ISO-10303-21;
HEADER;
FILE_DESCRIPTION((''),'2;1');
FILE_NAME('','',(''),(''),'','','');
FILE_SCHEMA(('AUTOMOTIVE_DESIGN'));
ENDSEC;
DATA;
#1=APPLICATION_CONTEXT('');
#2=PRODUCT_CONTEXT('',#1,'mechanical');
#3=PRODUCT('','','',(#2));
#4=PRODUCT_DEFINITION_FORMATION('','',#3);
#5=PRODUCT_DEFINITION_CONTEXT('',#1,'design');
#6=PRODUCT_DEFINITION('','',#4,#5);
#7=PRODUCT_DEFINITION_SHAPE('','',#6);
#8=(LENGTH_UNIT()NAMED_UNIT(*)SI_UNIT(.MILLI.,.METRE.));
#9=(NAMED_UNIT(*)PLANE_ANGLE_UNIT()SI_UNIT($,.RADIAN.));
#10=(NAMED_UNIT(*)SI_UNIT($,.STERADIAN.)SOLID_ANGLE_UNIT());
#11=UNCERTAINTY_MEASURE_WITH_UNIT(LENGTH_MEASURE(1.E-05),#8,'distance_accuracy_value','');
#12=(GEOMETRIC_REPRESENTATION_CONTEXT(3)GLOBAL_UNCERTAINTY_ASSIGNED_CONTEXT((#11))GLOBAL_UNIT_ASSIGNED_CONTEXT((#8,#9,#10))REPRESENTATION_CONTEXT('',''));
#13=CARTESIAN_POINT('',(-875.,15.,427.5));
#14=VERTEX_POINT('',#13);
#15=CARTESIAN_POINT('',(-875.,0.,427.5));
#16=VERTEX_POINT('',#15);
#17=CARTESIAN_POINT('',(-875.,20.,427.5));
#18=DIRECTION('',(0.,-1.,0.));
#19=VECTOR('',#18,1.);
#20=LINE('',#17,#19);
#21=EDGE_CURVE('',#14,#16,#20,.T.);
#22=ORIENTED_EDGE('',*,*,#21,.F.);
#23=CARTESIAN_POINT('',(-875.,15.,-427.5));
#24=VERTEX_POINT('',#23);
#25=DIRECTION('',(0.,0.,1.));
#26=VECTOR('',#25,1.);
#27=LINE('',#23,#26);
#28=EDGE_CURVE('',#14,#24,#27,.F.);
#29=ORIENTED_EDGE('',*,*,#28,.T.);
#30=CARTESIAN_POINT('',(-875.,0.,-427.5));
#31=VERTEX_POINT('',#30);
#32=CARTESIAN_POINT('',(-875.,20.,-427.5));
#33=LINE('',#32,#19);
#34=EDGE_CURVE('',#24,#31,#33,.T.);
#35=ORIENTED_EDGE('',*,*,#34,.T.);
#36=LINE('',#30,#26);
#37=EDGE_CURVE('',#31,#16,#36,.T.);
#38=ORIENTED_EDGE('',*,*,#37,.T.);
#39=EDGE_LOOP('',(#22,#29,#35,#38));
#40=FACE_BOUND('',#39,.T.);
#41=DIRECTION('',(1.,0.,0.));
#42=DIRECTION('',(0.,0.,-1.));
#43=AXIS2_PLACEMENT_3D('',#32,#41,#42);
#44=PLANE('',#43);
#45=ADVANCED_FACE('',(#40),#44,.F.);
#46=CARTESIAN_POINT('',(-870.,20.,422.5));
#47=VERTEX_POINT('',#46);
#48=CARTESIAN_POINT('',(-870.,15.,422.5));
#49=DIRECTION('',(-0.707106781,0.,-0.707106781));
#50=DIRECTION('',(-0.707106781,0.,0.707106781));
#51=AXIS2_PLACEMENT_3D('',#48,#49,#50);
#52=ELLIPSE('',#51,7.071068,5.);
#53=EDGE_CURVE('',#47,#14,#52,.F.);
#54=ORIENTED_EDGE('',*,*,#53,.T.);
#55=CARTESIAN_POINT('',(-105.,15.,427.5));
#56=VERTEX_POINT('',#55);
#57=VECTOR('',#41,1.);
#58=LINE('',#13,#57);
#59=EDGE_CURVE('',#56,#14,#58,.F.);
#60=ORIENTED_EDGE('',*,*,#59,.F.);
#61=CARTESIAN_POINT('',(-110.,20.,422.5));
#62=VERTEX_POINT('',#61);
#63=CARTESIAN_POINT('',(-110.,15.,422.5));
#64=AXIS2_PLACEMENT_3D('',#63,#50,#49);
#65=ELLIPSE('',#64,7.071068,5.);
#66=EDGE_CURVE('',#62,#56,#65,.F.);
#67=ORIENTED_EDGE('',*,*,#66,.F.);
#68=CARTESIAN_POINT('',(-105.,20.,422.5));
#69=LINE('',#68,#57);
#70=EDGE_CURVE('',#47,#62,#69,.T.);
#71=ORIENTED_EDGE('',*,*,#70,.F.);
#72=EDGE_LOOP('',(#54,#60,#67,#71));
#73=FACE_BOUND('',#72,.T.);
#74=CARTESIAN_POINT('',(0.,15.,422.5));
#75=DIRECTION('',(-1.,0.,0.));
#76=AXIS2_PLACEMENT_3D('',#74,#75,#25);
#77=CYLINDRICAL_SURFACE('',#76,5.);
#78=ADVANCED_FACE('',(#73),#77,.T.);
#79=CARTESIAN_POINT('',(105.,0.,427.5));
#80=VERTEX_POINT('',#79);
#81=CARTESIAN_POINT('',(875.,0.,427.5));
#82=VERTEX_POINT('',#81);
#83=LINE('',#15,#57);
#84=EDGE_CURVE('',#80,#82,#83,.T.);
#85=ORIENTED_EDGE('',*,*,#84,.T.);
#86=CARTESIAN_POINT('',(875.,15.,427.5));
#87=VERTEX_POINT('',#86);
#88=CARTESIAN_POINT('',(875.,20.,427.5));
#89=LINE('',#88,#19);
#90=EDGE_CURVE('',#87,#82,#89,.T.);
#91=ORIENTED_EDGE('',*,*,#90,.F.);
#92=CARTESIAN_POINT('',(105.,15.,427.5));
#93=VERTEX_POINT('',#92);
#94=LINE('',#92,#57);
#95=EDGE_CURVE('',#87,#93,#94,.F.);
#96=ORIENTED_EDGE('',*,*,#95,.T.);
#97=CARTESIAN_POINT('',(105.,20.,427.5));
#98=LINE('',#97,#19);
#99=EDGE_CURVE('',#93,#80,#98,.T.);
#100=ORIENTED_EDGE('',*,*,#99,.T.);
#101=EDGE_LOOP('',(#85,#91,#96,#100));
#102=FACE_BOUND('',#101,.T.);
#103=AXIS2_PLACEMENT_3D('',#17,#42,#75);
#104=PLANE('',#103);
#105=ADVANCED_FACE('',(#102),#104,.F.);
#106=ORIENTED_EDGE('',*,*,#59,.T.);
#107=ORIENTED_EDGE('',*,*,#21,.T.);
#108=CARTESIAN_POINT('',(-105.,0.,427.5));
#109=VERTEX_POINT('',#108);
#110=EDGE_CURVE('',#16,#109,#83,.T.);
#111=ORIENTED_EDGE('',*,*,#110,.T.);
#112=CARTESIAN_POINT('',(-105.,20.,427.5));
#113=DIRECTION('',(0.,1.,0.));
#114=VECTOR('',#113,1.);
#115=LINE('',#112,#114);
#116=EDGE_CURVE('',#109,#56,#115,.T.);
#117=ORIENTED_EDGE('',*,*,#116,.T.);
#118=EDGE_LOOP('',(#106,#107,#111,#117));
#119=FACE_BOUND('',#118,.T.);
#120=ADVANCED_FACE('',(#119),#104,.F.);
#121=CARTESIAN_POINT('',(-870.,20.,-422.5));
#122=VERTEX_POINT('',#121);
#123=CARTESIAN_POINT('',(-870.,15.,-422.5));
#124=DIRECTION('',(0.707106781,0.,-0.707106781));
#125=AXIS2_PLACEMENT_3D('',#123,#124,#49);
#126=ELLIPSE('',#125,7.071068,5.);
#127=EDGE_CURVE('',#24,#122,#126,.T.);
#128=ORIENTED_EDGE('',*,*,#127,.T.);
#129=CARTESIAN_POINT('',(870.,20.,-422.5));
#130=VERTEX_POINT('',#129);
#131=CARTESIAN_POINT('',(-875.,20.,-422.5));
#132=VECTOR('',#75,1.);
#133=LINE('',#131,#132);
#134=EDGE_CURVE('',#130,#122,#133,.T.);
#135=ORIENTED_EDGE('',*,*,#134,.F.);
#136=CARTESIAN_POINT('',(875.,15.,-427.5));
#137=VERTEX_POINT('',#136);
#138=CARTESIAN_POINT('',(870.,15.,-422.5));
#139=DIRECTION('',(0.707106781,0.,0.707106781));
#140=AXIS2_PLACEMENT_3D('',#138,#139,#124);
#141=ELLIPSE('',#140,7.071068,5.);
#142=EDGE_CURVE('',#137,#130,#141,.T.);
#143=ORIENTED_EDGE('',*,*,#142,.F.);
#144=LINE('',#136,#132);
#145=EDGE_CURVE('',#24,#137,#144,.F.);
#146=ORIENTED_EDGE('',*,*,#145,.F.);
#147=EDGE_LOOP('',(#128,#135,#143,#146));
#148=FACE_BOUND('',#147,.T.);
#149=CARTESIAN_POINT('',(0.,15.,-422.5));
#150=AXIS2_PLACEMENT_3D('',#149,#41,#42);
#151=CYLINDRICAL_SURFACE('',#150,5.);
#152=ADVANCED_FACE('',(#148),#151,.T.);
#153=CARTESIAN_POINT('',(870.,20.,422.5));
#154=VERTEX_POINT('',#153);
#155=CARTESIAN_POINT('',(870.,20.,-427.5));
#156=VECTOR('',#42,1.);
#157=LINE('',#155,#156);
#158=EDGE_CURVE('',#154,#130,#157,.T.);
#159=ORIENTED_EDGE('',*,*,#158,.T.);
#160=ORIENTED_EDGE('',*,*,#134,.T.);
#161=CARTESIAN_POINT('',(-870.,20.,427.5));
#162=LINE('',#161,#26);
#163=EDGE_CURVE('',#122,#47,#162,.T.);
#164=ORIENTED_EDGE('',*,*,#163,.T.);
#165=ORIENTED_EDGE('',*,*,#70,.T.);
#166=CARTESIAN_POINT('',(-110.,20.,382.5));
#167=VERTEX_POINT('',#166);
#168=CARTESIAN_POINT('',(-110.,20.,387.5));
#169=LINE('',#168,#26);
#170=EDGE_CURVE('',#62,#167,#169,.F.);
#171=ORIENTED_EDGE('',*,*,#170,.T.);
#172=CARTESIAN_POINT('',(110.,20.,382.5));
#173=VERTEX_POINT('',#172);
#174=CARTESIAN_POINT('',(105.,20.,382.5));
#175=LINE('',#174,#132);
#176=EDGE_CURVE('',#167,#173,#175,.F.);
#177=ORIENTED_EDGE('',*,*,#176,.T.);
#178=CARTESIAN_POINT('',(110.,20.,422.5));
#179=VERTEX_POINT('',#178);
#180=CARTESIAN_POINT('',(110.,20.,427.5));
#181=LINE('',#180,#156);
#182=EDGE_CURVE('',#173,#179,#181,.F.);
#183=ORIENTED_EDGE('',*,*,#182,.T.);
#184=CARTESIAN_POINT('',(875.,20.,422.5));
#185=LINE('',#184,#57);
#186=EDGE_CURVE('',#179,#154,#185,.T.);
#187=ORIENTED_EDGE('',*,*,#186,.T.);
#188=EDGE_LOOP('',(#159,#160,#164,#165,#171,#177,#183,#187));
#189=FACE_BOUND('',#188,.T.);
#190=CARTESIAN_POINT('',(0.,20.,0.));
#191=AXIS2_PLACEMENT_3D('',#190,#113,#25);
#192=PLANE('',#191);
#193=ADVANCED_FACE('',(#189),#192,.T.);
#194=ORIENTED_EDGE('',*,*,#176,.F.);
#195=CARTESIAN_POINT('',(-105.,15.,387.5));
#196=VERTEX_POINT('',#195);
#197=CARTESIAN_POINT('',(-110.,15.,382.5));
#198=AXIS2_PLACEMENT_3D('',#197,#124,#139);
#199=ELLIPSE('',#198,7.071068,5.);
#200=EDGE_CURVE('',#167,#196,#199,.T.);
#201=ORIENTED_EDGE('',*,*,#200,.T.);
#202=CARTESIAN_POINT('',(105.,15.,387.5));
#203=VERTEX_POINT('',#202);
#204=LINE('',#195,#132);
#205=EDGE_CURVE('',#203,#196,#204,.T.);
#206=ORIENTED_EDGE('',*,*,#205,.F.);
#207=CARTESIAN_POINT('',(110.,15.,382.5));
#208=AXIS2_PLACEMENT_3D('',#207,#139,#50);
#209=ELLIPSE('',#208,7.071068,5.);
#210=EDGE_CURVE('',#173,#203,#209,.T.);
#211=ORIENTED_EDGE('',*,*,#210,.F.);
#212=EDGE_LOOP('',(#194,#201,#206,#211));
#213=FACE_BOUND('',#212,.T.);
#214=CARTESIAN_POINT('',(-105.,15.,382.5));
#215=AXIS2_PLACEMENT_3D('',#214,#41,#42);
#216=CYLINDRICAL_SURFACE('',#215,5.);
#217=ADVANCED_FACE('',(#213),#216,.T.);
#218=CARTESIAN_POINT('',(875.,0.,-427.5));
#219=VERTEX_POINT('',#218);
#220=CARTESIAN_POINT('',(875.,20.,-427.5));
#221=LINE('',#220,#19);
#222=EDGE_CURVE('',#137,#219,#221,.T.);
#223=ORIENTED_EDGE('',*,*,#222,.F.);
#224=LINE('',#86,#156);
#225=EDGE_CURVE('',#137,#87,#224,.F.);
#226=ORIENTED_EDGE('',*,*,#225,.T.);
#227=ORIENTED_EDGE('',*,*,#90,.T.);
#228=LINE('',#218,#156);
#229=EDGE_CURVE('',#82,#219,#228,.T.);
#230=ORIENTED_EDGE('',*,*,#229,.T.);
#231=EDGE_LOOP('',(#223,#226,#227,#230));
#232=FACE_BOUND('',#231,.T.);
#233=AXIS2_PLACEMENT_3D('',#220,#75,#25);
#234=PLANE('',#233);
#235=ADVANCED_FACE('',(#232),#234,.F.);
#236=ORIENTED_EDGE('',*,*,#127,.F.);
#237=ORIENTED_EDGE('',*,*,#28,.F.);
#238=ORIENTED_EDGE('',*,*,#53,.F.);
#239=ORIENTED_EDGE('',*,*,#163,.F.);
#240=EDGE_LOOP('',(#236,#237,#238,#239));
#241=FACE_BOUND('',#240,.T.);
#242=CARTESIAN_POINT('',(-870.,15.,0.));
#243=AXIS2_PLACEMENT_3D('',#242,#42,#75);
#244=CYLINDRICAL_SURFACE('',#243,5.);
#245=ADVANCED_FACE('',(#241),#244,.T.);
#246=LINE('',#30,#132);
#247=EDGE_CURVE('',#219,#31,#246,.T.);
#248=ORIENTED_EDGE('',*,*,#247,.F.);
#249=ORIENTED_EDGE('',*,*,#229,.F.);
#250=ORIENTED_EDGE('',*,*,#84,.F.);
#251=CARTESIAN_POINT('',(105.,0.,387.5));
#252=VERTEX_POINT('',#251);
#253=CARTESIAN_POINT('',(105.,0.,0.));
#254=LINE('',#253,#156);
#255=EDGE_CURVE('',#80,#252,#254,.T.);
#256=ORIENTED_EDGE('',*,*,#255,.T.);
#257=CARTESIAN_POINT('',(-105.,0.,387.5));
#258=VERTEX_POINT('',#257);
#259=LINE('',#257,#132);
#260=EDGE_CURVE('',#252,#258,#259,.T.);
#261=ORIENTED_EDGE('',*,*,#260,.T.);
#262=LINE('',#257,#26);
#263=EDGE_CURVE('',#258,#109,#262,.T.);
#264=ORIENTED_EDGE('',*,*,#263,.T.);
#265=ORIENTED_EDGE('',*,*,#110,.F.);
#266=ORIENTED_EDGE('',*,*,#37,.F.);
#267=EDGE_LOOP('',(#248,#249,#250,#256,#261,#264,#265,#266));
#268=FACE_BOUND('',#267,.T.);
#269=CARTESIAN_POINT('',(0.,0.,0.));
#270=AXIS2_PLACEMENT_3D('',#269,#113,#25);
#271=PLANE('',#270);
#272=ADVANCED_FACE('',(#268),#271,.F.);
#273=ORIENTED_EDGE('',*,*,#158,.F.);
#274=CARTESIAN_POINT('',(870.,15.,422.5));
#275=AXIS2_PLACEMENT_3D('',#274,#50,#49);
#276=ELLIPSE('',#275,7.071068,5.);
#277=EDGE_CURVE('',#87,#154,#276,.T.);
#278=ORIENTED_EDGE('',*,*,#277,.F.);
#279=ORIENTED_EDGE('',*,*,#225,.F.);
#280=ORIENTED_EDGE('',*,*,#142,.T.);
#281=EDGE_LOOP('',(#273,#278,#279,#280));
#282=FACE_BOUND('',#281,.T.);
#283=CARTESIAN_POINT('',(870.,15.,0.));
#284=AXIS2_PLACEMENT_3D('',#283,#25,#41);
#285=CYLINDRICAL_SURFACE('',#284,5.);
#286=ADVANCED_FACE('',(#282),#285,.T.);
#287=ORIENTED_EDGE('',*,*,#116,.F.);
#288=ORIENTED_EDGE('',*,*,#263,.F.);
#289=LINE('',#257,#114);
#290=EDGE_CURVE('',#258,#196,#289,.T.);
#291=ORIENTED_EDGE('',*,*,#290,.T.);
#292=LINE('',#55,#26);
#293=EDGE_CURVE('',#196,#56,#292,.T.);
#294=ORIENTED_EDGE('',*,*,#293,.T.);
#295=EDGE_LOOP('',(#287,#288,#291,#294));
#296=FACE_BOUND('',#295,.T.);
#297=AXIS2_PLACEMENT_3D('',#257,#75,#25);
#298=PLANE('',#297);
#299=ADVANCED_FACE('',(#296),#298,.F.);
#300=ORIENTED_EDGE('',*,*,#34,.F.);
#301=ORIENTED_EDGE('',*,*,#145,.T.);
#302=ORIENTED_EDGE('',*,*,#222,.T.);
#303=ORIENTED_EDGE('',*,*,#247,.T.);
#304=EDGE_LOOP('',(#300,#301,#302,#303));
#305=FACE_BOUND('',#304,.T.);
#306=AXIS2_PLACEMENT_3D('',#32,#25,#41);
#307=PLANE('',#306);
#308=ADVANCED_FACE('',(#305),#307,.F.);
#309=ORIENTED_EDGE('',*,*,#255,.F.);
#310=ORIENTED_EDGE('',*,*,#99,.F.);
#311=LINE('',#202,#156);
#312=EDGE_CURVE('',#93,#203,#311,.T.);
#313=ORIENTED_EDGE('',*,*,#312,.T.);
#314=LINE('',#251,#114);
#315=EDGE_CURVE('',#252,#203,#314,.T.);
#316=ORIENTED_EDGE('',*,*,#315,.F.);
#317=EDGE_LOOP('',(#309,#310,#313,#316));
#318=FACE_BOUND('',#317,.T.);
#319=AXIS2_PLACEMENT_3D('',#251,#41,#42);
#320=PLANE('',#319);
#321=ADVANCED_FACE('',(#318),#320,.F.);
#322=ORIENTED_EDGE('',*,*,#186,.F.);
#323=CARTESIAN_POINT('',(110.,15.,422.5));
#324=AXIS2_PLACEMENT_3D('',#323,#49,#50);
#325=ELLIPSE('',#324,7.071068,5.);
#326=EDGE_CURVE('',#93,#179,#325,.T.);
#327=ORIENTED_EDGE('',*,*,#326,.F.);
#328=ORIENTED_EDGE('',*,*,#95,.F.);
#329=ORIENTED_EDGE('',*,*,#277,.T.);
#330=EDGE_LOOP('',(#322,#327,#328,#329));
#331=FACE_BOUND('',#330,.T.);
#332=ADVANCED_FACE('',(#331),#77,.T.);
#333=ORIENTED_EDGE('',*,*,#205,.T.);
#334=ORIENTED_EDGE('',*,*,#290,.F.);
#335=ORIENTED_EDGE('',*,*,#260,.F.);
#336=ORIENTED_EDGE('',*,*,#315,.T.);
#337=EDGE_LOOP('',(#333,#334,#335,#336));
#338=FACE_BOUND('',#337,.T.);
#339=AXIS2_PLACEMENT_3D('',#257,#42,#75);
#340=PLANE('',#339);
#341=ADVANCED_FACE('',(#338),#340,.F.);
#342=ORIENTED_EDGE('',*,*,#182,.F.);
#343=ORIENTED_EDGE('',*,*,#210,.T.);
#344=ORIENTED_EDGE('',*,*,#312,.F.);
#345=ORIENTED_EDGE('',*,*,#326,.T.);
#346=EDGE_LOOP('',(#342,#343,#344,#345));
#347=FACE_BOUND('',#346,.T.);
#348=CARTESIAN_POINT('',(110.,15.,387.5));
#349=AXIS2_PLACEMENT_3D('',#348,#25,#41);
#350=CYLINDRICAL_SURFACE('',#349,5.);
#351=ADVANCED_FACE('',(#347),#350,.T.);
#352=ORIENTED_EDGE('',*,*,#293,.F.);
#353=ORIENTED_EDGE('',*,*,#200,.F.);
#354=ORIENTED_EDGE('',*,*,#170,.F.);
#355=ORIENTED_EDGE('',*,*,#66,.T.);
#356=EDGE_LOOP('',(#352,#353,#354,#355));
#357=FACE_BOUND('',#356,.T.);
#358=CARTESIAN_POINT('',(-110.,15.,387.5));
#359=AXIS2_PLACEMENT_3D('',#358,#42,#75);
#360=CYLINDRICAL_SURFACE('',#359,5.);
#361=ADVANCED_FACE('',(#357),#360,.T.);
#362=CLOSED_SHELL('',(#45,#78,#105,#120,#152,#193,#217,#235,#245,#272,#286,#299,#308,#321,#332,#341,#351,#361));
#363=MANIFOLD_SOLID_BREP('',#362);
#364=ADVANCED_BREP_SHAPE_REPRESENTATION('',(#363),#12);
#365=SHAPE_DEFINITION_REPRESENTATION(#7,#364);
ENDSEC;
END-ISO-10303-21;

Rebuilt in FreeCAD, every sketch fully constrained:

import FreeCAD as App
import Part
import Sketcher
from FreeCAD import Vector


def edges_at(feature, points):
    """Names of the edges that pass closest to the given points."""
    edges = feature.Shape.Edges
    near = lambda p: min(range(len(edges)), key=lambda i: edges[i].distToShape(Part.Vertex(*p))[0])
    return sorted({f"Edge{near(p) + 1}" for p in points})


def add_polygon(sketch, points):
    """Adds a closed chain of lines whose ends are joined by coincident constraints."""
    first, n = sketch.GeometryCount, len(points)
    for a, b in zip(points, points[1:] + points[:1]):
        sketch.addGeometry(Part.LineSegment(App.Vector(*a, 0), App.Vector(*b, 0)), False)
    for i in range(n):
        sketch.addConstraint(Sketcher.Constraint("Coincident", first + i, 2, first + (i + 1) % n, 1))

doc = App.newDocument("Part")
body = doc.addObject("PartDesign::Body", "Body")

sketch1 = body.newObject("Sketcher::SketchObject", "Sketch")
sketch1.AttachmentSupport = (doc.getObject("XZ_Plane"), [""])
sketch1.MapMode = "FlatFace"
add_polygon(sketch1, [(-875, -428), (-875, 428), (875, 428), (875, -428)])
sketch1.addConstraint([
    Sketcher.Constraint("Vertical", 0),
    Sketcher.Constraint("Horizontal", 1),
    Sketcher.Constraint("Vertical", 2),
    Sketcher.Constraint("Horizontal", 3),
    Sketcher.Constraint("Symmetric", 0, 2, 2, 2, -1, 1),
    Sketcher.Constraint("DistanceX", 1, 1, 1, 2, 1750.0),
    Sketcher.Constraint("DistanceY", 0, 1, 0, 2, 855.0),
])
pad1 = body.newObject("PartDesign::Pad", "Pad")
pad1.Profile = sketch1
pad1.Length = 20
pad1.Reversed = True

sketch2 = body.newObject("Sketcher::SketchObject", "Sketch001")
sketch2.AttachmentSupport = (doc.getObject("XZ_Plane"), [""])
sketch2.MapMode = "FlatFace"
sketch2.AttachmentOffset = App.Placement(Vector(0, 0, -20), App.Rotation())
add_polygon(sketch2, [(-105, 388), (-105, 468), (105, 468), (105, 388)])
sketch2.addConstraint([
    Sketcher.Constraint("Vertical", 0),
    Sketcher.Constraint("Horizontal", 1),
    Sketcher.Constraint("Vertical", 2),
    Sketcher.Constraint("Horizontal", 3),
    Sketcher.Constraint("DistanceX", 1, 1, 1, 2, 210.0),
    Sketcher.Constraint("DistanceY", 0, 1, 0, 2, 80.0),
    Sketcher.Constraint("DistanceX", 0, 2, -1, 1, 105.0),
    Sketcher.Constraint("DistanceY", -1, 1, 0, 2, 467.5),
])
pocket1 = body.newObject("PartDesign::Pocket", "Pocket")
pocket1.Profile = sketch2
pocket1.Length = 20
pocket1.Reversed = True
doc.recompute()

fillet = body.newObject("PartDesign::Fillet", "Fillet")
fillet.Base = (pocket1, edges_at(pocket1, [
    (-875, 20, 0),
    (490, 20, 427.5),
    (-490, 20, 427.5),
    (-105, 20, 407.5),
    (105, 20, 407.5),
    (0, 20, 387.5),
    (875, 20, 0),
    (0, 20, -427.5),
]))
fillet.Radius = 5

doc.recompute()
